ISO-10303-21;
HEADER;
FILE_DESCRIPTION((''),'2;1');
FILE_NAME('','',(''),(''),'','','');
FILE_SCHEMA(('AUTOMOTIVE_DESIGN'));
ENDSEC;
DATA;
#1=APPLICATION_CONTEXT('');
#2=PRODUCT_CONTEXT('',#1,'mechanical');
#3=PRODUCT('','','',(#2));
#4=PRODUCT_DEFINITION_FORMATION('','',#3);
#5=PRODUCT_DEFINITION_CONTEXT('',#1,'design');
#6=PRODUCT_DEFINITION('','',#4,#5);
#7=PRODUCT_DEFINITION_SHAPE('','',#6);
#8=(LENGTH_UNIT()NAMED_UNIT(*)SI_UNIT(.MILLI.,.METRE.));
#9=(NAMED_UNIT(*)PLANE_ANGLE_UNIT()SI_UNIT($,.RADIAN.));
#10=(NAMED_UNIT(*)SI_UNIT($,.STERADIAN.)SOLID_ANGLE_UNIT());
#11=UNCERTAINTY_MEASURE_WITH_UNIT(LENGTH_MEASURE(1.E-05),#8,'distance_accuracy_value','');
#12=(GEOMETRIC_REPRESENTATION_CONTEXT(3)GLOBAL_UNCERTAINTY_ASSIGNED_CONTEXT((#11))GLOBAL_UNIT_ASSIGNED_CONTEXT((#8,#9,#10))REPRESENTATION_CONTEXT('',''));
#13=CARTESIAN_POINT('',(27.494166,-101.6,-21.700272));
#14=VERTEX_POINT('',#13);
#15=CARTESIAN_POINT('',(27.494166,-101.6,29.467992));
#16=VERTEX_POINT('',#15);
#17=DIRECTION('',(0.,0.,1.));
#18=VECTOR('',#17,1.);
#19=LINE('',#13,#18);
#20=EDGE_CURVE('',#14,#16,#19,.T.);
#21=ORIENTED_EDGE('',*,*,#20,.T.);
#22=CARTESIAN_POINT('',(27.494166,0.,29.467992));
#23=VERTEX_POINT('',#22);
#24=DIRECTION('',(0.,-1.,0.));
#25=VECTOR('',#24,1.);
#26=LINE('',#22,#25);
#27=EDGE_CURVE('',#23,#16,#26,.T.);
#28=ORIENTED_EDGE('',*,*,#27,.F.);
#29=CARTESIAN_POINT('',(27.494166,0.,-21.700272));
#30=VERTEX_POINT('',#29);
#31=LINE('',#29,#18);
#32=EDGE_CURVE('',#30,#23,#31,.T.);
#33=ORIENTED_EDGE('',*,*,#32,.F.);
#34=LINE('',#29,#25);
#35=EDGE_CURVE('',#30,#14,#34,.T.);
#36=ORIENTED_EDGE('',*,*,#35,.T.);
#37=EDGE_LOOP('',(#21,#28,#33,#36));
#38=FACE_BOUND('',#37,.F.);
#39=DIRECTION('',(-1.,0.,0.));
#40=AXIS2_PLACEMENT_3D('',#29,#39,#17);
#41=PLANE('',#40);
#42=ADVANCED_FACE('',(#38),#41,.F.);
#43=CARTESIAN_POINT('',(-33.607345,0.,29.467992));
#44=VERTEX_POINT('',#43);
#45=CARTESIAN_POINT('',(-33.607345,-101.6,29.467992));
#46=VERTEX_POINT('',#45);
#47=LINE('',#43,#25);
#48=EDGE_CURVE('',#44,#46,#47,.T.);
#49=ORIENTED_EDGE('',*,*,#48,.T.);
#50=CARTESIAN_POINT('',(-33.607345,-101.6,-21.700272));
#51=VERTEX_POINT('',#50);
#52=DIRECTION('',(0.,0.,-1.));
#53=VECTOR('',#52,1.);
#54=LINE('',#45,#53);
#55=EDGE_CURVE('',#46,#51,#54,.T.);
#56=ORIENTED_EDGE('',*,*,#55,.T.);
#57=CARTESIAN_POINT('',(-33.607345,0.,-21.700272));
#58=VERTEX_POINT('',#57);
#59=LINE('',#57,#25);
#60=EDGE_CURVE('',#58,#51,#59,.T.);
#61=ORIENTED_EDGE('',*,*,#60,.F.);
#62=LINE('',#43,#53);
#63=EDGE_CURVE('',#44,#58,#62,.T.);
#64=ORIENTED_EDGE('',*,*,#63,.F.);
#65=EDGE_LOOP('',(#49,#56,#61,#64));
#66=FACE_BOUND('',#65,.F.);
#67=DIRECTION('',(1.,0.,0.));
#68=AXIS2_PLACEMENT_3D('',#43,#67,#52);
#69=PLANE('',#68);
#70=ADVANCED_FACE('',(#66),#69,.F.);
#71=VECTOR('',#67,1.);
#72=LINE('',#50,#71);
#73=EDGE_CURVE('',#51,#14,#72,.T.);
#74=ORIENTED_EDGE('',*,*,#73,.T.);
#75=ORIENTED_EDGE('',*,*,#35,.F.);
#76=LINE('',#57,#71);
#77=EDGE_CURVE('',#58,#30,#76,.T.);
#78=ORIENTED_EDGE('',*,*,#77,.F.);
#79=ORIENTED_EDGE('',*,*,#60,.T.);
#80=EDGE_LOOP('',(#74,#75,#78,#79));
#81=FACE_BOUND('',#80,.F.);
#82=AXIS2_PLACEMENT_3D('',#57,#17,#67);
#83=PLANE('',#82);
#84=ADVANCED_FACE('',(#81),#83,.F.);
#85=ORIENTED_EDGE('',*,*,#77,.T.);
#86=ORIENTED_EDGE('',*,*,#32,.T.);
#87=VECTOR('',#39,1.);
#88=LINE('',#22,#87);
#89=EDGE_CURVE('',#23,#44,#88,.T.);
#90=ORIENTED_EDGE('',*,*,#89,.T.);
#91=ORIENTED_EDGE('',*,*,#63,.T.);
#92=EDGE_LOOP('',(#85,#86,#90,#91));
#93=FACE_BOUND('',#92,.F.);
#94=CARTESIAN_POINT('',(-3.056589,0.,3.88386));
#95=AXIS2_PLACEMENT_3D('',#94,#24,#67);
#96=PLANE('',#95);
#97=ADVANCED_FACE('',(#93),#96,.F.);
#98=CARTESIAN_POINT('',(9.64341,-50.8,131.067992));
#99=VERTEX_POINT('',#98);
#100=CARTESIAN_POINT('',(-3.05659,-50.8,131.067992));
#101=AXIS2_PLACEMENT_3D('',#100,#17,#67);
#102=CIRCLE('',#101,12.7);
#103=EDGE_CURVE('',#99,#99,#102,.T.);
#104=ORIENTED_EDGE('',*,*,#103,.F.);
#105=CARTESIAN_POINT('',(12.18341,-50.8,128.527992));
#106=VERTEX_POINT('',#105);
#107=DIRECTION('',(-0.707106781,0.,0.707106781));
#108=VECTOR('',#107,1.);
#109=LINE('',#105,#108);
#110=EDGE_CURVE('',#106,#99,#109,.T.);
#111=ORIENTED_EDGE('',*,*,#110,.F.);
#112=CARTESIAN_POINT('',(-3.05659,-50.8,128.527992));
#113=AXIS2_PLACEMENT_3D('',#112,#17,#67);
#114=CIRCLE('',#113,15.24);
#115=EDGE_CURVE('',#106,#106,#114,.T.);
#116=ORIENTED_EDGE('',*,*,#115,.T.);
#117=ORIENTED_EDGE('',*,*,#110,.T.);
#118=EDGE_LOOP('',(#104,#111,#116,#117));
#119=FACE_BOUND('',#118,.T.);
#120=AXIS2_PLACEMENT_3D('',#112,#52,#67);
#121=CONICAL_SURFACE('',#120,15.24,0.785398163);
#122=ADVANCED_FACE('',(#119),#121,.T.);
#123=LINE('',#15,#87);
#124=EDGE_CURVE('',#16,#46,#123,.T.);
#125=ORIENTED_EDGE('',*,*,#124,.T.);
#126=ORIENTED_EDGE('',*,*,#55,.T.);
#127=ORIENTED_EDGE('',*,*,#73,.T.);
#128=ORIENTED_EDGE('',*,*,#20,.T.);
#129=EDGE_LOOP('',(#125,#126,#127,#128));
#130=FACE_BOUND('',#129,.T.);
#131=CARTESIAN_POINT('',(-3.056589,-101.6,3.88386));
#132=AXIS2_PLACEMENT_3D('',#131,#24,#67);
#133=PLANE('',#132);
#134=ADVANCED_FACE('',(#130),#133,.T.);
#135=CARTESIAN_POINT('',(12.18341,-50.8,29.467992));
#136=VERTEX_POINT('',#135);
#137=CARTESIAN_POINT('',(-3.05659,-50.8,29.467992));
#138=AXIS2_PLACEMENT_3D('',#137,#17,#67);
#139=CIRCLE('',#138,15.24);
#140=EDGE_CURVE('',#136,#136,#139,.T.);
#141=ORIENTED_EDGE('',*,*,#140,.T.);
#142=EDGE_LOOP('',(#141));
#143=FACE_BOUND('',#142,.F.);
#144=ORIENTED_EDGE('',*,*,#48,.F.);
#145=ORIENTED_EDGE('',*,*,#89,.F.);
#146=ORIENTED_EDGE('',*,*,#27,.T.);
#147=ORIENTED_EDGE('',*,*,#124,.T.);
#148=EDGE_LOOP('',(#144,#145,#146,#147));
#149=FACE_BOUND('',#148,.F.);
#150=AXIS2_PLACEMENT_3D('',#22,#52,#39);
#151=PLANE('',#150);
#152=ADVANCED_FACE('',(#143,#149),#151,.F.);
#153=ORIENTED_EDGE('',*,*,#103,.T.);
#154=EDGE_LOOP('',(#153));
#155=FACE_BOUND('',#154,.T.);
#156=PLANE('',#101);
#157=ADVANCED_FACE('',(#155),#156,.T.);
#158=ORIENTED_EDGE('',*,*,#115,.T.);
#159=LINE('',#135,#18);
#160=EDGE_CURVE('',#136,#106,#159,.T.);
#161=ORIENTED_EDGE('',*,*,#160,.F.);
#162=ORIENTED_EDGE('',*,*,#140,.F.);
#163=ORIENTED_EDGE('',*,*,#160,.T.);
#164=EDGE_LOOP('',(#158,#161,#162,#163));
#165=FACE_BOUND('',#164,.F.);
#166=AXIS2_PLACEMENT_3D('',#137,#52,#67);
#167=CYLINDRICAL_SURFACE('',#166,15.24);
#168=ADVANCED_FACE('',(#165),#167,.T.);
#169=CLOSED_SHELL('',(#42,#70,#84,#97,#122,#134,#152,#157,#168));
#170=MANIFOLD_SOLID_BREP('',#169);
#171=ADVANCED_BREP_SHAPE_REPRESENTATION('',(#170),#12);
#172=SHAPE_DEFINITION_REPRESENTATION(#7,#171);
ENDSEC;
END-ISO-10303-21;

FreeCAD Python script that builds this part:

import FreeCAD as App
import Part
import Sketcher
from FreeCAD import Vector
Q = App.Units.Quantity


def edges_at(feature, points):
    """Names of the edges that pass closest to the given points."""
    edges = feature.Shape.Edges
    near = lambda p: min(range(len(edges)), key=lambda i: edges[i].distToShape(Part.Vertex(*p))[0])
    return sorted({f"Edge{near(p) + 1}" for p in points})


def add_polygon(sketch, points):
    """Adds a closed chain of lines whose ends are joined by coincident constraints."""
    first, n = sketch.GeometryCount, len(points)
    for a, b in zip(points, points[1:] + points[:1]):
        sketch.addGeometry(Part.LineSegment(App.Vector(*a, 0), App.Vector(*b, 0)), False)
    for i in range(n):
        sketch.addConstraint(Sketcher.Constraint("Coincident", first + i, 2, first + (i + 1) % n, 1))

doc = App.newDocument("Part")
body = doc.addObject("PartDesign::Body", "Body")

# Sketch on XZ plane
sketch1 = doc.addObject("Sketcher::SketchObject", "Sketch")
body.addObject(sketch1)
sketch1.AttachmentSupport = (doc.XZ_Plane, [""])
sketch1.MapMode = "FlatFace"
add_polygon(sketch1, [(27, 29), (-34, 29), (-34, -22), (27, -22)])  # lines 0-3
sketch1.addConstraint(Sketcher.Constraint("Horizontal", 0))
sketch1.addConstraint(Sketcher.Constraint("Vertical", 1))
sketch1.addConstraint(Sketcher.Constraint("Horizontal", 2))
sketch1.addConstraint(Sketcher.Constraint("Vertical", 3))
sketch1.addConstraint(Sketcher.Constraint("DistanceX", 0, 2, 0, 1, Q("61.101511 mm")))
sketch1.addConstraint(Sketcher.Constraint("DistanceY", 1, 2, 1, 1, Q("51.168264 mm")))
sketch1.addConstraint(Sketcher.Constraint("DistanceY", -1, 1, 0, 2, Q("29.467992 mm")))
sketch1.addConstraint(Sketcher.Constraint("DistanceX", 0, 2, -1, 1, Q("33.607345 mm")))
pad1 = doc.addObject("PartDesign::Pad", "Pad")
body.addObject(pad1)
pad1.Profile = sketch1
pad1.Length = Q("4 in")

# Sketch on XY plane
sketch2 = doc.addObject("Sketcher::SketchObject", "Sketch001")
body.addObject(sketch2)
sketch2.AttachmentSupport = (doc.XY_Plane, [""])
sketch2.MapMode = "FlatFace"
sketch2.AttachmentOffset = App.Placement(Vector(0, 0, 29.467992), App.Rotation())
sketch2.addGeometry(Part.Circle(Vector(-3, -51, 0), Vector(0, 0, 1), 15), False)
sketch2.addConstraint(Sketcher.Constraint("Diameter", 0, Q("1.2 in")))
sketch2.addConstraint(Sketcher.Constraint("DistanceY", 0, 3, -1, 1, Q("2 in")))
sketch2.addConstraint(Sketcher.Constraint("DistanceX", 0, 3, -1, 1, Q("3.05659 mm")))
pad2 = doc.addObject("PartDesign::Pad", "Pad001")
body.addObject(pad2)
pad2.Profile = sketch2
pad2.Length = Q("4 in")
doc.recompute()

chamfer = doc.addObject("PartDesign::Chamfer", "Chamfer")
body.addObject(chamfer)
chamfer.Base = (pad2, edges_at(pad2, [(-18.297, -50.8, 131.068)]))
chamfer.Size = Q("0.1 in")

doc.recompute()
